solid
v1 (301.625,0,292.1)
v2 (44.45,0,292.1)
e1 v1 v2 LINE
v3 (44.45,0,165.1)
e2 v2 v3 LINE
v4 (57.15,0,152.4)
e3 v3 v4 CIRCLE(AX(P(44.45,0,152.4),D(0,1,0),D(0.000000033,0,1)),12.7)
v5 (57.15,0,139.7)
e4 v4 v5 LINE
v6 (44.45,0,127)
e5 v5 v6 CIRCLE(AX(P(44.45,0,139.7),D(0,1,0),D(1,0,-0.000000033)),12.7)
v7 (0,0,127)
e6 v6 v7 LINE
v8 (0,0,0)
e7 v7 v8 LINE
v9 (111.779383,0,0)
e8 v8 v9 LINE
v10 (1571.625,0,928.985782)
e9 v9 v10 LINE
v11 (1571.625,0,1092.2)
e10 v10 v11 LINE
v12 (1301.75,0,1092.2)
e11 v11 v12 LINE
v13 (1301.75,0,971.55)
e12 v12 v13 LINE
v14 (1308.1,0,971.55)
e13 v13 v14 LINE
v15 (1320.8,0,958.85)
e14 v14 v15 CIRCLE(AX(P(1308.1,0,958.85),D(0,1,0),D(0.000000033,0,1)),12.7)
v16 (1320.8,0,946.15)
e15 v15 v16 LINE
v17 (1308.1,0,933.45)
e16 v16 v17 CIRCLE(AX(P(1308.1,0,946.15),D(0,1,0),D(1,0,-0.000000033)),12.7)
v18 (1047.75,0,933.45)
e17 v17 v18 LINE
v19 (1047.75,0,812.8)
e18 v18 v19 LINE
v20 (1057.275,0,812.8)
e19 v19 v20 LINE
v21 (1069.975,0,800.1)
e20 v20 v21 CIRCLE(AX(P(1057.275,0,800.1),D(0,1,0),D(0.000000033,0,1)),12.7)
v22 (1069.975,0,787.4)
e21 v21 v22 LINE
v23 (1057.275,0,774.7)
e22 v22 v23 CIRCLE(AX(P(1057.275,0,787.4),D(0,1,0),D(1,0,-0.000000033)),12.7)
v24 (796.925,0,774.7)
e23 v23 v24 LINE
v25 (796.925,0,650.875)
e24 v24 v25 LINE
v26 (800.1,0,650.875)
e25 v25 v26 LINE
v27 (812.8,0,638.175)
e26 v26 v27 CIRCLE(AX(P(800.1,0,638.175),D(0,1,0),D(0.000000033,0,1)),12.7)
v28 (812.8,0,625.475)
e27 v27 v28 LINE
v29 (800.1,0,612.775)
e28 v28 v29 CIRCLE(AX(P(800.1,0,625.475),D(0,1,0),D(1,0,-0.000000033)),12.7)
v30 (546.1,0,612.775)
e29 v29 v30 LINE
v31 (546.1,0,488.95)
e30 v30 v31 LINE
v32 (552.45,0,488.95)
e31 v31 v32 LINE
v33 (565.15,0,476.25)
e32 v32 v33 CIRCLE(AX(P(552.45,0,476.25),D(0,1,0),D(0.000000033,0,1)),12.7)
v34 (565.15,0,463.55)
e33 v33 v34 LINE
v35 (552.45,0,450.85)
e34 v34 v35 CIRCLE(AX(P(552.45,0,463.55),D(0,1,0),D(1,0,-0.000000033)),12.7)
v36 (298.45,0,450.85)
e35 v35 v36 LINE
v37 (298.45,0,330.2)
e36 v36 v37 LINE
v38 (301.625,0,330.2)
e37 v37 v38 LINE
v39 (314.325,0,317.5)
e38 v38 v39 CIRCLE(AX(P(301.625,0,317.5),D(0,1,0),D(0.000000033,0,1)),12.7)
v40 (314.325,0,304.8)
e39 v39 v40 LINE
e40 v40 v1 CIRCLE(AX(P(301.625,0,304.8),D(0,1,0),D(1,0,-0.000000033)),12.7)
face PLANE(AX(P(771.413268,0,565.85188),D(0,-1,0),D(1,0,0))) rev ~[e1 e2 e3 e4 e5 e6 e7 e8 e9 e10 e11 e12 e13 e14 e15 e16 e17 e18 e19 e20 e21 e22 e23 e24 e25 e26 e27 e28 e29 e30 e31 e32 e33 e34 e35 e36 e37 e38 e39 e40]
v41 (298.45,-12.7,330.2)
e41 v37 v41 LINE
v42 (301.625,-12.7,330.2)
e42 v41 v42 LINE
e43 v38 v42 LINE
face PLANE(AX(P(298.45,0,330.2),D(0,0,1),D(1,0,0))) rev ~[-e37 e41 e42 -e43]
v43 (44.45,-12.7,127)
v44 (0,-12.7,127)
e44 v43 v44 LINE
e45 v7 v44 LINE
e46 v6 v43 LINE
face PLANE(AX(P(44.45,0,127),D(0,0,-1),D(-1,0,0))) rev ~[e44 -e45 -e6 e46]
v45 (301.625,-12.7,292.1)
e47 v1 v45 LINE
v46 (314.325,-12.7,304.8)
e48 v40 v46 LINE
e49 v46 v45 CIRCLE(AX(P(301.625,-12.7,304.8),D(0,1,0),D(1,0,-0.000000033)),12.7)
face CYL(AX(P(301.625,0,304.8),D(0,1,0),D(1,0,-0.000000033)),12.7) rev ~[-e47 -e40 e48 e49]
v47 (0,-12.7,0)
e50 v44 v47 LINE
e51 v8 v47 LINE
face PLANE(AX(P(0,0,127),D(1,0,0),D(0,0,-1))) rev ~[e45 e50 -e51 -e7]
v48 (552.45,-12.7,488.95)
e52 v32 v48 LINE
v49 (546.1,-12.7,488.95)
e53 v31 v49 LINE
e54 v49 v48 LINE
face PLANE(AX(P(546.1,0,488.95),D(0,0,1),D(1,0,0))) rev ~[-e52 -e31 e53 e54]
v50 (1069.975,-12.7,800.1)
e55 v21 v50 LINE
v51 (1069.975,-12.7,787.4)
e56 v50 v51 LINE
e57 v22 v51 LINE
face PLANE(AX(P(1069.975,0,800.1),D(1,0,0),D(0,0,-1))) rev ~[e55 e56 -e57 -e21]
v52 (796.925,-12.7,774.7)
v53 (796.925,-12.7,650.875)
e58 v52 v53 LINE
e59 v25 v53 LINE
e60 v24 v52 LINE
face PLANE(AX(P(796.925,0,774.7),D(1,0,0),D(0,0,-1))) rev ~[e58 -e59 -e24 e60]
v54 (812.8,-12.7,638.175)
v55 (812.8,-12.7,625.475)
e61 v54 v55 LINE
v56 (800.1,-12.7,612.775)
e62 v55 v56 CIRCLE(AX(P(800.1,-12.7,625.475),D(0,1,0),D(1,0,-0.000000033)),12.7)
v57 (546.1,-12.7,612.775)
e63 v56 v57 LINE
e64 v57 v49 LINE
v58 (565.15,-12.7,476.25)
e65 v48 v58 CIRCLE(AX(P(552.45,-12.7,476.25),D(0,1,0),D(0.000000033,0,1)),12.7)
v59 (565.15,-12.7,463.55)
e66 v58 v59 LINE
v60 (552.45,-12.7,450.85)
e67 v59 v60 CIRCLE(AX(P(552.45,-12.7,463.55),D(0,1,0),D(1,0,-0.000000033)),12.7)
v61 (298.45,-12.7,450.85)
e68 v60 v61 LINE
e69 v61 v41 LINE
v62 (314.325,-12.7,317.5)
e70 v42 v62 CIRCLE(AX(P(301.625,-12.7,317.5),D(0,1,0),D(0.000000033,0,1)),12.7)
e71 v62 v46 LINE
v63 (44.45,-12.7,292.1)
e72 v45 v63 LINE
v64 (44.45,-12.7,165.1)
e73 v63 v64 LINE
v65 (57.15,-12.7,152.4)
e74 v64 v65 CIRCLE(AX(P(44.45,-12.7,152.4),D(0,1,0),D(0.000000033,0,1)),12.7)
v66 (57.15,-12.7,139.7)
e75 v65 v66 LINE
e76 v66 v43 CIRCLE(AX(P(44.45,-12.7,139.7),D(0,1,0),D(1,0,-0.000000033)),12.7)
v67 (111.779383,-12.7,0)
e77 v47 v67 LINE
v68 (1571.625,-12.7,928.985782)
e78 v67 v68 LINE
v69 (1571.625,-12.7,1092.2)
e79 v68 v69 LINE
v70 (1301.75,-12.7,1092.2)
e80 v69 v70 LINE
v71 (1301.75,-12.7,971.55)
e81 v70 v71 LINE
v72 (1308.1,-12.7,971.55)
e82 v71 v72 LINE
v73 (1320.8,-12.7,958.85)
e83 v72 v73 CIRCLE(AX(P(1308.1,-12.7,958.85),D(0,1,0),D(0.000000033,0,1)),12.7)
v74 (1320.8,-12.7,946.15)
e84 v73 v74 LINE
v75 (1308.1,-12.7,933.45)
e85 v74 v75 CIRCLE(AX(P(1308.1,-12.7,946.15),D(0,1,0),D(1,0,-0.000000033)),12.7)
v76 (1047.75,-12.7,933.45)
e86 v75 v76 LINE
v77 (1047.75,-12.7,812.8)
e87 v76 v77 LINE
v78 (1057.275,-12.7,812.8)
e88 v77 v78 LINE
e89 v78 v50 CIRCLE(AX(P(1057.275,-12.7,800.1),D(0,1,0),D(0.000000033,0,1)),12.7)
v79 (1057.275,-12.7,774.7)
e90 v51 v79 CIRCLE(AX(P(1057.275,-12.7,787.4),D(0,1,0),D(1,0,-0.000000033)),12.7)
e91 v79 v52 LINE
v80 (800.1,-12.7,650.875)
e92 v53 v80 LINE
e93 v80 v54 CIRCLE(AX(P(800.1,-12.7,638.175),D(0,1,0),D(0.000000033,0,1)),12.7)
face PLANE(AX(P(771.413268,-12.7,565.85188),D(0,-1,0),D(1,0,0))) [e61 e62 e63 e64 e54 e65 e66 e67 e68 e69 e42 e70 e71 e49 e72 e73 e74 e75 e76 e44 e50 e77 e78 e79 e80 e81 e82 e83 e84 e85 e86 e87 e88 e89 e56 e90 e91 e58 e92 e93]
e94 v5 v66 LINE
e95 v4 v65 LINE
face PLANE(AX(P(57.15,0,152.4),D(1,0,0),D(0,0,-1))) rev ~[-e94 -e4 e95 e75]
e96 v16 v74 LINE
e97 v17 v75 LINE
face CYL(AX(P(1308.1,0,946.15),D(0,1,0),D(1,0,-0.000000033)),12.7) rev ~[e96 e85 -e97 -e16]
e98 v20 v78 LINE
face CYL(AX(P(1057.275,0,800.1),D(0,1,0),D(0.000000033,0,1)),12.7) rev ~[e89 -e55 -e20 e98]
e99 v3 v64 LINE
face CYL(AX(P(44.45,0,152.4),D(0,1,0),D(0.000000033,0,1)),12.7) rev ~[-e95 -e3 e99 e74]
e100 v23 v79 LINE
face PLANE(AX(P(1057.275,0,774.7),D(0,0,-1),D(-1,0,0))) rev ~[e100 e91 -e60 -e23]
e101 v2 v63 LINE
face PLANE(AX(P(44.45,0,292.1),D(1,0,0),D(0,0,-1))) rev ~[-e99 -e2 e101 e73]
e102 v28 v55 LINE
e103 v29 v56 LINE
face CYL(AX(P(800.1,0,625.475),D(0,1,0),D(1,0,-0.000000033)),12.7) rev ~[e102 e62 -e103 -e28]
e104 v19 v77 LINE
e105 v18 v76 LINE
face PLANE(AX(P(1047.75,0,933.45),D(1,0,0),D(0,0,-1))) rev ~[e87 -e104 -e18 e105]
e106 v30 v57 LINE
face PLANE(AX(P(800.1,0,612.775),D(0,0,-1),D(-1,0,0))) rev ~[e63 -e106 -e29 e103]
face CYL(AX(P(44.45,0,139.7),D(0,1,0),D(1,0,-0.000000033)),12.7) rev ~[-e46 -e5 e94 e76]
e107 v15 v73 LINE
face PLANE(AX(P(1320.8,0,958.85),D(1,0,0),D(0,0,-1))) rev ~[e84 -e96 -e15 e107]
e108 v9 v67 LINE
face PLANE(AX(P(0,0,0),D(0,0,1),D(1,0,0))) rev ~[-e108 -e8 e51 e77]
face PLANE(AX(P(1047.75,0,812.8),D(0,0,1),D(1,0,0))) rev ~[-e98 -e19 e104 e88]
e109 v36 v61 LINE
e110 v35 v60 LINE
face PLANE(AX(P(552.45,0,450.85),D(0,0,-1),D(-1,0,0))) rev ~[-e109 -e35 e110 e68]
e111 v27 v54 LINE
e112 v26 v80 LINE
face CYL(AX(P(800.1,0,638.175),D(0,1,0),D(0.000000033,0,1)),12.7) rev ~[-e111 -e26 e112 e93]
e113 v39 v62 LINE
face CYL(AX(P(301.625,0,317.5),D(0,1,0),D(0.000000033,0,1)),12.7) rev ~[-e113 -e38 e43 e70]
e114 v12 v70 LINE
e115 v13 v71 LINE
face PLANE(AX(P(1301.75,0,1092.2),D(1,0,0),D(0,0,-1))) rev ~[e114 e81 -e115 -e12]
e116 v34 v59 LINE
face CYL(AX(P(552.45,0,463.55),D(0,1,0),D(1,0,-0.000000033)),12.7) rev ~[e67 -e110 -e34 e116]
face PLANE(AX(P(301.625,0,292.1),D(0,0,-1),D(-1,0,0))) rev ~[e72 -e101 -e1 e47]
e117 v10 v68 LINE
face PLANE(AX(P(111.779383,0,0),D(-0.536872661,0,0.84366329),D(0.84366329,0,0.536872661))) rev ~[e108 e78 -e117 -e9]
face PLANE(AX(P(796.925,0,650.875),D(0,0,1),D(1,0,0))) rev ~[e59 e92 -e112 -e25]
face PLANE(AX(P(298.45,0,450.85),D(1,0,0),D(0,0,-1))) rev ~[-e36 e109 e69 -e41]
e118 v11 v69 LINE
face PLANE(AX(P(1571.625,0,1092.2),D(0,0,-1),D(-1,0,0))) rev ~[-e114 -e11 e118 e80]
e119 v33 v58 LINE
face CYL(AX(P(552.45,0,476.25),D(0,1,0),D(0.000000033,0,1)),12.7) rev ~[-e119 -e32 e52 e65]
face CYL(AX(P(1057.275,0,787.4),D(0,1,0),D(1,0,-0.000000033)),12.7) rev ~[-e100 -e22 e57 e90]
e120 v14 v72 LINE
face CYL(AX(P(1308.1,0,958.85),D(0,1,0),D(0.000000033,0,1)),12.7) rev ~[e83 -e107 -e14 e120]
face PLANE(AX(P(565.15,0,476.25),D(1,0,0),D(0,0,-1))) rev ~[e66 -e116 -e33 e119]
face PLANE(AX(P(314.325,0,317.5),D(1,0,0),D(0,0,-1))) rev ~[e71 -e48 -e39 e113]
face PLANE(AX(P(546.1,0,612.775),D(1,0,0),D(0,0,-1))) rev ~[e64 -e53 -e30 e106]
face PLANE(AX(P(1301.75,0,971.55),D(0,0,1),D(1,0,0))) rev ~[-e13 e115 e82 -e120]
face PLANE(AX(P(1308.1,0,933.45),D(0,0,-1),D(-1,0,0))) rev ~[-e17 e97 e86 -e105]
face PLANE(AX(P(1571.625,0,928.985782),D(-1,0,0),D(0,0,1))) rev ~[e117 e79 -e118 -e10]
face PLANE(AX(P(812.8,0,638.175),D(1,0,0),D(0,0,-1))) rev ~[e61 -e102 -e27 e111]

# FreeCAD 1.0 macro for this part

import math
import FreeCAD as App
import Part
import Sketcher
from FreeCAD import Vector
Q = App.Units.Quantity

doc = App.newDocument("Part")
params = doc.addObject("Spreadsheet::Sheet", "Params")
for row, (alias, value) in enumerate([
    ("sketch1_radius", "0.5 in"),
    ("sketch1_width", "10 in"),
    ("sketch1_height", "5 in"),
    ("sketch1_height2", "0.5 in"),
    ("sketch1_width2", "0.25 in"),
    ("pad1_length", "0.5 in"),
], start=1):
    params.set(f"A{row}", alias)
    params.set(f"B{row}", "=" + value)
    params.setAlias(f"B{row}", alias)

body = doc.addObject("PartDesign::Body", "Body")

sketch1 = body.newObject("Sketcher::SketchObject", "Sketch")
sketch1.AttachmentSupport = (doc.getObject("XZ_Plane"), [""])
sketch1.MapMode = "FlatFace"
sketch1.addGeometry(Part.LineSegment(Vector(0, 127, 0), Vector(0, 0, 0)), False)
sketch1.addGeometry(Part.LineSegment(Vector(0, 0, 0), Vector(111.8, 0, 0)), False)
sketch1.addGeometry(Part.LineSegment(Vector(111.8, 0, 0), Vector(1571.6, 929, 0)), False)
sketch1.addGeometry(Part.LineSegment(Vector(1571.6, 929, 0), Vector(1571.6, 1092.2, 0)), False)
sketch1.addGeometry(Part.LineSegment(Vector(1571.6, 1092.2, 0), Vector(1301.8, 1092.2, 0)), False)
sketch1.addGeometry(Part.LineSegment(Vector(1301.8, 1092.2, 0), Vector(1301.8, 971.5, 0)), False)
sketch1.addGeometry(Part.LineSegment(Vector(1301.8, 971.5, 0), Vector(1308.1, 971.5, 0)), False)
sketch1.addGeometry(Part.ArcOfCircle(Part.Circle(Vector(1308.1, 958.8, 0), Vector(0, 0, 1), 12.7), math.radians(0), math.radians(90)), False)
sketch1.addGeometry(Part.LineSegment(Vector(1320.8, 958.9, 0), Vector(1320.8, 946.1, 0)), False)
sketch1.addGeometry(Part.ArcOfCircle(Part.Circle(Vector(1308.1, 946.2, 0), Vector(0, 0, 1), 12.7), math.radians(-90), math.radians(0)), False)
sketch1.addGeometry(Part.LineSegment(Vector(1308.1, 933.5, 0), Vector(1047.8, 933.5, 0)), False)
sketch1.addGeometry(Part.LineSegment(Vector(1047.8, 933.5, 0), Vector(1047.8, 812.8, 0)), False)
sketch1.addGeometry(Part.LineSegment(Vector(1047.8, 812.8, 0), Vector(1057.3, 812.8, 0)), False)
sketch1.addGeometry(Part.ArcOfCircle(Part.Circle(Vector(1057.3, 800.1, 0), Vector(0, 0, 1), 12.7), math.radians(0), math.radians(90)), False)
sketch1.addGeometry(Part.LineSegment(Vector(1070, 800.1, 0), Vector(1070, 787.4, 0)), False)
sketch1.addGeometry(Part.ArcOfCircle(Part.Circle(Vector(1057.3, 787.4, 0), Vector(0, 0, 1), 12.7), math.radians(-90), math.radians(0)), False)
sketch1.addGeometry(Part.LineSegment(Vector(1057.3, 774.7, 0), Vector(796.9, 774.7, 0)), False)
sketch1.addGeometry(Part.LineSegment(Vector(796.9, 774.7, 0), Vector(796.9, 650.9, 0)), False)
sketch1.addGeometry(Part.LineSegment(Vector(796.9, 650.9, 0), Vector(800.1, 650.9, 0)), False)
sketch1.addGeometry(Part.ArcOfCircle(Part.Circle(Vector(800.1, 638.2, 0), Vector(0, 0, 1), 12.7), math.radians(0), math.radians(90)), False)
sketch1.addGeometry(Part.LineSegment(Vector(812.8, 638.2, 0), Vector(812.8, 625.5, 0)), False)
sketch1.addGeometry(Part.ArcOfCircle(Part.Circle(Vector(800.1, 625.5, 0), Vector(0, 0, 1), 12.7), math.radians(-90), math.radians(0)), False)
sketch1.addGeometry(Part.LineSegment(Vector(800.1, 612.8, 0), Vector(546.1, 612.8, 0)), False)
sketch1.addGeometry(Part.LineSegment(Vector(546.1, 612.8, 0), Vector(546.1, 488.9, 0)), False)
sketch1.addGeometry(Part.LineSegment(Vector(546.1, 488.9, 0), Vector(552.5, 488.9, 0)), False)
sketch1.addGeometry(Part.ArcOfCircle(Part.Circle(Vector(552.4, 476.2, 0), Vector(0, 0, 1), 12.7), math.radians(0), math.radians(90)), False)
sketch1.addGeometry(Part.LineSegment(Vector(565.1, 476.2, 0), Vector(565.1, 463.6, 0)), False)
sketch1.addGeometry(Part.ArcOfCircle(Part.Circle(Vector(552.4, 463.6, 0), Vector(0, 0, 1), 12.7), math.radians(-90), math.radians(0)), False)
sketch1.addGeometry(Part.LineSegment(Vector(552.5, 450.9, 0), Vector(298.4, 450.9, 0)), False)
sketch1.addGeometry(Part.LineSegment(Vector(298.4, 450.9, 0), Vector(298.4, 330.2, 0)), False)
sketch1.addGeometry(Part.LineSegment(Vector(298.4, 330.2, 0), Vector(301.6, 330.2, 0)), False)
sketch1.addGeometry(Part.ArcOfCircle(Part.Circle(Vector(301.6, 317.5, 0), Vector(0, 0, 1), 12.7), math.radians(0), math.radians(90)), False)
sketch1.addGeometry(Part.LineSegment(Vector(314.3, 317.5, 0), Vector(314.3, 304.8, 0)), False)
sketch1.addGeometry(Part.ArcOfCircle(Part.Circle(Vector(301.6, 304.8, 0), Vector(0, 0, 1), 12.7), math.radians(-90), math.radians(0)), False)
sketch1.addGeometry(Part.LineSegment(Vector(301.6, 292.1, 0), Vector(44.5, 292.1, 0)), False)
sketch1.addGeometry(Part.LineSegment(Vector(44.5, 292.1, 0), Vector(44.5, 165.1, 0)), False)
sketch1.addGeometry(Part.ArcOfCircle(Part.Circle(Vector(44.4, 152.4, 0), Vector(0, 0, 1), 12.7), math.radians(0), math.radians(90)), False)
sketch1.addGeometry(Part.LineSegment(Vector(57.1, 152.4, 0), Vector(57.1, 139.7, 0)), False)
sketch1.addGeometry(Part.ArcOfCircle(Part.Circle(Vector(44.4, 139.7, 0), Vector(0, 0, 1), 12.7), math.radians(-90), math.radians(0)), False)
sketch1.addGeometry(Part.LineSegment(Vector(44.5, 127, 0), Vector(0, 127, 0)), False)
sketch1.addConstraint(Sketcher.Constraint("Coincident", 0, 2, 1, 1))
sketch1.addConstraint(Sketcher.Constraint("Coincident", 1, 2, 2, 1))
sketch1.addConstraint(Sketcher.Constraint("Coincident", 2, 2, 3, 1))
sketch1.addConstraint(Sketcher.Constraint("Coincident", 3, 2, 4, 1))
sketch1.addConstraint(Sketcher.Constraint("Coincident", 4, 2, 5, 1))
sketch1.addConstraint(Sketcher.Constraint("Coincident", 5, 2, 6, 1))
sketch1.addConstraint(Sketcher.Constraint("Tangent", 6, 2, 7, 2))
sketch1.addConstraint(Sketcher.Constraint("Tangent", 7, 1, 8, 1))
sketch1.addConstraint(Sketcher.Constraint("Tangent", 8, 2, 9, 2))
sketch1.addConstraint(Sketcher.Constraint("Tangent", 9, 1, 10, 1))
sketch1.addConstraint(Sketcher.Constraint("Coincident", 10, 2, 11, 1))
sketch1.addConstraint(Sketcher.Constraint("Coincident", 11, 2, 12, 1))
sketch1.addConstraint(Sketcher.Constraint("Tangent", 12, 2, 13, 2))
sketch1.addConstraint(Sketcher.Constraint("Tangent", 13, 1, 14, 1))
sketch1.addConstraint(Sketcher.Constraint("Tangent", 14, 2, 15, 2))
sketch1.addConstraint(Sketcher.Constraint("Tangent", 15, 1, 16, 1))
sketch1.addConstraint(Sketcher.Constraint("Coincident", 16, 2, 17, 1))
sketch1.addConstraint(Sketcher.Constraint("Coincident", 17, 2, 18, 1))
sketch1.addConstraint(Sketcher.Constraint("Tangent", 18, 2, 19, 2))
sketch1.addConstraint(Sketcher.Constraint("Tangent", 19, 1, 20, 1))
sketch1.addConstraint(Sketcher.Constraint("Tangent", 20, 2, 21, 2))
sketch1.addConstraint(Sketcher.Constraint("Tangent", 21, 1, 22, 1))
sketch1.addConstraint(Sketcher.Constraint("Coincident", 22, 2, 23, 1))
sketch1.addConstraint(Sketcher.Constraint("Coincident", 23, 2, 24, 1))
sketch1.addConstraint(Sketcher.Constraint("Tangent", 24, 2, 25, 2))
sketch1.addConstraint(Sketcher.Constraint("Tangent", 25, 1, 26, 1))
sketch1.addConstraint(Sketcher.Constraint("Tangent", 26, 2, 27, 2))
sketch1.addConstraint(Sketcher.Constraint("Tangent", 27, 1, 28, 1))
sketch1.addConstraint(Sketcher.Constraint("Coincident", 28, 2, 29, 1))
sketch1.addConstraint(Sketcher.Constraint("Coincident", 29, 2, 30, 1))
sketch1.addConstraint(Sketcher.Constraint("Tangent", 30, 2, 31, 2))
sketch1.addConstraint(Sketcher.Constraint("Tangent", 31, 1, 32, 1))
sketch1.addConstraint(Sketcher.Constraint("Tangent", 32, 2, 33, 2))
sketch1.addConstraint(Sketcher.Constraint("Tangent", 33, 1, 34, 1))
sketch1.addConstraint(Sketcher.Constraint("Coincident", 34, 2, 35, 1))
sketch1.addConstraint(Sketcher.Constraint("Coincident", 35, 2, 36, 2))
sketch1.addConstraint(Sketcher.Constraint("Tangent", 36, 1, 37, 1))
sketch1.addConstraint(Sketcher.Constraint("Tangent", 37, 2, 38, 2))
sketch1.addConstraint(Sketcher.Constraint("Tangent", 38, 1, 39, 1))
sketch1.addConstraint(Sketcher.Constraint("Coincident", 39, 2, 0, 1))
sketch1.addConstraint(Sketcher.Constraint("Vertical", 0))
sketch1.addConstraint(Sketcher.Constraint("Horizontal", 1))
sketch1.addConstraint(Sketcher.Constraint("Vertical", 3))
sketch1.addConstraint(Sketcher.Constraint("Horizontal", 4))
sketch1.addConstraint(Sketcher.Constraint("Vertical", 5))
sketch1.addConstraint(Sketcher.Constraint("Horizontal", 6))
sketch1.addConstraint(Sketcher.Constraint("Vertical", 8))
sketch1.addConstraint(Sketcher.Constraint("Horizontal", 10))
sketch1.addConstraint(Sketcher.Constraint("Vertical", 11))
sketch1.addConstraint(Sketcher.Constraint("Horizontal", 12))
sketch1.addConstraint(Sketcher.Constraint("Vertical", 14))
sketch1.addConstraint(Sketcher.Constraint("Horizontal", 16))
sketch1.addConstraint(Sketcher.Constraint("Vertical", 17))
sketch1.addConstraint(Sketcher.Constraint("Horizontal", 18))
sketch1.addConstraint(Sketcher.Constraint("Vertical", 20))
sketch1.addConstraint(Sketcher.Constraint("Horizontal", 22))
sketch1.addConstraint(Sketcher.Constraint("Vertical", 23))
sketch1.addConstraint(Sketcher.Constraint("Horizontal", 24))
sketch1.addConstraint(Sketcher.Constraint("Vertical", 26))
sketch1.addConstraint(Sketcher.Constraint("Horizontal", 28))
sketch1.addConstraint(Sketcher.Constraint("Vertical", 29))
sketch1.addConstraint(Sketcher.Constraint("Horizontal", 30))
sketch1.addConstraint(Sketcher.Constraint("Vertical", 32))
sketch1.addConstraint(Sketcher.Constraint("Horizontal", 34))
sketch1.addConstraint(Sketcher.Constraint("Vertical", 35))
sketch1.addConstraint(Sketcher.Constraint("Vertical", 37))
sketch1.addConstraint(Sketcher.Constraint("Horizontal", 39))
sketch1.addConstraint(Sketcher.Constraint("Coincident", 0, 2, -1, 1))
sketch1.addConstraint(Sketcher.Constraint("Equal", 7, 9))
sketch1.addConstraint(Sketcher.Constraint("Equal", 9, 13))
sketch1.addConstraint(Sketcher.Constraint("Equal", 13, 15))
sketch1.addConstraint(Sketcher.Constraint("Equal", 15, 19))
sketch1.addConstraint(Sketcher.Constraint("Equal", 19, 21))
sketch1.addConstraint(Sketcher.Constraint("Equal", 21, 25))
sketch1.addConstraint(Sketcher.Constraint("Equal", 25, 27))
sketch1.addConstraint(Sketcher.Constraint("Equal", 27, 31))
sketch1.addConstraint(Sketcher.Constraint("Equal", 31, 33))
sketch1.addConstraint(Sketcher.Constraint("Equal", 33, 36))
sketch1.addConstraint(Sketcher.Constraint("Equal", 36, 38))
sketch1.addConstraint(Sketcher.Constraint("Vertical", 38, 3, 34, 2))
sketch1.addConstraint(Sketcher.Constraint("Equal", 10, 16))
sketch1.addConstraint(Sketcher.Constraint("Equal", 6, 24))
sketch1.addConstraint(Sketcher.Constraint("Equal", 22, 28))
sketch1.addConstraint(Sketcher.Constraint("Equal", 18, 30))
sketch1.addConstraint(Sketcher.Constraint("Equal", 5, 11))
sketch1.addConstraint(Sketcher.Constraint("Equal", 8, 14))
sketch1.addConstraint(Sketcher.Constraint("Equal", 14, 20))
sketch1.addConstraint(Sketcher.Constraint("Equal", 17, 23))
sketch1.addConstraint(Sketcher.Constraint("Equal", 20, 26))
sketch1.addConstraint(Sketcher.Constraint("Equal", 11, 29))
sketch1.addConstraint(Sketcher.Constraint("Equal", 26, 32))
sketch1.addConstraint(Sketcher.Constraint("Equal", 0, 35))
sketch1.addConstraint(Sketcher.Constraint("Equal", 32, 37))
sketch1.addConstraint(Sketcher.Constraint("Radius", 7, Q("0.5 in")))
sketch1.addConstraint(Sketcher.Constraint("DistanceX", 22, 2, 22, 1, Q("10 in")))
sketch1.addConstraint(Sketcher.Constraint("DistanceY", 0, 2, 0, 1, Q("5 in")))
sketch1.addConstraint(Sketcher.Constraint("DistanceY", 8, 2, 8, 1, Q("0.5 in")))
sketch1.addConstraint(Sketcher.Constraint("DistanceY", -1, 1, 15, 3, Q("31 in")))
sketch1.addConstraint(Sketcher.Constraint("DistanceY", -1, 1, 3, 2, Q("43 in")))
sketch1.addConstraint(Sketcher.Constraint("DistanceX", -1, 1, 7, 1, Q("52 in")))
sketch1.addConstraint(Sketcher.Constraint("DistanceX", -1, 1, 19, 1, Q("32 in")))
sketch1.addConstraint(Sketcher.Constraint("DistanceX", 36, 3, 27, 3, Q("20 in")))
sketch1.addConstraint(Sketcher.Constraint("DistanceX", 10, 2, 5, 2, Q("10 in")))
sketch1.addConstraint(Sketcher.Constraint("DistanceX", 6, 1, 6, 2, Q("0.25 in")))
sketch1.addConstraint(Sketcher.Constraint("DistanceX", 4, 2, 4, 1, Q("10.625 in")))
sketch1.addConstraint(Sketcher.Constraint("DistanceX", 12, 1, 12, 2, Q("0.375 in")))
sketch1.addConstraint(Sketcher.Constraint("DistanceY", 3, 1, 3, 2, 163.214218))
sketch1.addConstraint(Sketcher.Constraint("DistanceX", 1, 1, 1, 2, 111.779383))
sketch1.setExpression("Constraints[93]", "Params.sketch1_radius")
sketch1.setExpression("Constraints[94]", "Params.sketch1_width")
sketch1.setExpression("Constraints[95]", "Params.sketch1_height")
sketch1.setExpression("Constraints[96]", "Params.sketch1_height2")
sketch1.setExpression("Constraints[103]", "Params.sketch1_width2")
pad1 = body.newObject("PartDesign::Pad", "Pad")
pad1.Profile = sketch1
pad1.setExpression("Length", "Params.pad1_length")

doc.recompute()
